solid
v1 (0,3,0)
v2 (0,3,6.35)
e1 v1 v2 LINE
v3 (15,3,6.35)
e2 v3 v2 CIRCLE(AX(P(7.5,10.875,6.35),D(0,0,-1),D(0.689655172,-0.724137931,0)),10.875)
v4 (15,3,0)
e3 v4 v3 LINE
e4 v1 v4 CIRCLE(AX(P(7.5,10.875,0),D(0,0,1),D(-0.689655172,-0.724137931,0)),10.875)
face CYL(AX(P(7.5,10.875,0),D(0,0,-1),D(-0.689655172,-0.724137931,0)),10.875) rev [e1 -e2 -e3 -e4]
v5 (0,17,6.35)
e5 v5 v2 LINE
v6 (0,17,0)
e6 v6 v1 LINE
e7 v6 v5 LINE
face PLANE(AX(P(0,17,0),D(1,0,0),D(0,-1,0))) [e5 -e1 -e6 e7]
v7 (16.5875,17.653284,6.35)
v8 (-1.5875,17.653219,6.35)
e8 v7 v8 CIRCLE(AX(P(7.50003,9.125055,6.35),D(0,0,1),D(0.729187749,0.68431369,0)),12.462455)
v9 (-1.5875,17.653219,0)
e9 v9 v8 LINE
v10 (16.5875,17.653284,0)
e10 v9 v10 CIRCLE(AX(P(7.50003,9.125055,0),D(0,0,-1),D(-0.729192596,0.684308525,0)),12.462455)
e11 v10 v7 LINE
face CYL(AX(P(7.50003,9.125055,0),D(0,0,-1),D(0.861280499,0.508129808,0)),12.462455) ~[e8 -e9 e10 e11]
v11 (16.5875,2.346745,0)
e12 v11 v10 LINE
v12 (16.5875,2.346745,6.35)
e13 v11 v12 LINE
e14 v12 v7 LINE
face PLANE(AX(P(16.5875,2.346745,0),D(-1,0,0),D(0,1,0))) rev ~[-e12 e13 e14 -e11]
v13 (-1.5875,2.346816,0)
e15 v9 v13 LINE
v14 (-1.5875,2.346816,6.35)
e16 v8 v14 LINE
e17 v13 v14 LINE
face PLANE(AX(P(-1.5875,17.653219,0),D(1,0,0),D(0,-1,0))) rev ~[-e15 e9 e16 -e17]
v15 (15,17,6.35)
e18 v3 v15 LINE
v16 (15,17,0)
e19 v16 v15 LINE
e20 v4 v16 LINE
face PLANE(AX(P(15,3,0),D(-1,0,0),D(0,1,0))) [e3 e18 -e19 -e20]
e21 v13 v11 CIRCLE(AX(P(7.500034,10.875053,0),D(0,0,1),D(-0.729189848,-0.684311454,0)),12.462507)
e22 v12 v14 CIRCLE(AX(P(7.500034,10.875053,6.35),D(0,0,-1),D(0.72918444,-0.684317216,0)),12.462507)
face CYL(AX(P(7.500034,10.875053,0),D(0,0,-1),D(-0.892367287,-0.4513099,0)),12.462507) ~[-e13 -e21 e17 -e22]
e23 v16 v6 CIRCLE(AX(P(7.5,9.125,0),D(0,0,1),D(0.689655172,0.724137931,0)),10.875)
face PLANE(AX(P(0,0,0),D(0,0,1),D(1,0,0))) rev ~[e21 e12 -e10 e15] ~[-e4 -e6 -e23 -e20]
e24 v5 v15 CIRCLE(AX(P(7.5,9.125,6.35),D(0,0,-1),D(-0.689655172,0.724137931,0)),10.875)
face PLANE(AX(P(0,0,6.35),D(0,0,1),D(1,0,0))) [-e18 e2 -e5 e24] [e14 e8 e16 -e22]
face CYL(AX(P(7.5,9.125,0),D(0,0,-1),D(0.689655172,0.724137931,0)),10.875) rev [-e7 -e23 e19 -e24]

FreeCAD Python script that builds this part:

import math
import FreeCAD as App
import Part
import Sketcher
Q = App.Units.Quantity

doc = App.newDocument("Part")
body = doc.addObject("PartDesign::Body", "Body")

# Sketch on XY plane
sketch1 = body.newObject("Sketcher::SketchObject", "Sketch")
sketch1.AttachmentSupport = (doc.getObject("XY_Plane"), [""])
sketch1.MapMode = "FlatFace"
sketch1.addGeometry(Part.LineSegment(App.Vector(16.5875, 2.346745, 0), App.Vector(16.5875, 17.653284, 0)), False)
sketch1.addGeometry(Part.ArcOfCircle(Part.Circle(App.Vector(7.5, 9.125, 0), App.Vector(0, 0, 1), 12.462509), math.radians(43.181746), math.radians(136.81847)), False)
sketch1.addGeometry(Part.LineSegment(App.Vector(-1.5875, 17.653219, 0), App.Vector(-1.5875, 2.346816, 0)), False)
sketch1.addGeometry(Part.ArcOfCircle(Part.Circle(App.Vector(7.5, 10.875, 0), App.Vector(0, 0, 1), 12.462453), math.radians(-136.81859), math.radians(-43.18165)), False)
sketch1.addGeometry(Part.LineSegment(App.Vector(0, 3, 0), App.Vector(0, 17, 0)), False)
sketch1.addGeometry(Part.ArcOfCircle(Part.Circle(App.Vector(7.5, 9.125, 0), App.Vector(0, 0, 1), 10.875), math.radians(46.397181), math.radians(133.602819)), False)
sketch1.addGeometry(Part.LineSegment(App.Vector(15, 17, 0), App.Vector(15, 3, 0)), False)
sketch1.addGeometry(Part.ArcOfCircle(Part.Circle(App.Vector(7.5, 10.875, 0), App.Vector(0, 0, 1), 10.875), math.radians(-133.602819), math.radians(-46.397181)), False)
sketch1.addConstraint(Sketcher.Constraint("Coincident", 0, 2, 1, 1))
sketch1.addConstraint(Sketcher.Constraint("Coincident", 1, 2, 2, 1))
sketch1.addConstraint(Sketcher.Constraint("Coincident", 2, 2, 3, 1))
sketch1.addConstraint(Sketcher.Constraint("Coincident", 3, 2, 0, 1))
sketch1.addConstraint(Sketcher.Constraint("Coincident", 4, 2, 5, 2))
sketch1.addConstraint(Sketcher.Constraint("Coincident", 5, 1, 6, 1))
sketch1.addConstraint(Sketcher.Constraint("Coincident", 6, 2, 7, 2))
sketch1.addConstraint(Sketcher.Constraint("Coincident", 7, 1, 4, 1))
sketch1.addConstraint(Sketcher.Constraint("Vertical", 0))
sketch1.addConstraint(Sketcher.Constraint("Vertical", 2))
sketch1.addConstraint(Sketcher.Constraint("Vertical", 4))
sketch1.addConstraint(Sketcher.Constraint("Vertical", 6))
sketch1.addConstraint(Sketcher.Constraint("Coincident", 5, 3, 1, 3))
sketch1.addConstraint(Sketcher.Constraint("Coincident", 7, 3, 3, 3))
sketch1.addConstraint(Sketcher.Constraint("Equal", 1, 3))
sketch1.addConstraint(Sketcher.Constraint("Equal", 5, 7))
sketch1.addConstraint(Sketcher.Constraint("PointOnObject", 4, 2, -2))
sketch1.addConstraint(Sketcher.Constraint("Horizontal", 0, 2, 1, 2))
sketch1.addConstraint(Sketcher.Constraint("Horizontal", 2, 2, 3, 2))
sketch1.addConstraint(Sketcher.Constraint("Horizontal", 4, 2, 5, 1))
sketch1.addConstraint(Sketcher.Constraint("DistanceY", 4, 1, 4, 2, Q("14 mm")))
sketch1.addConstraint(Sketcher.Constraint("DistanceX", -1, 1, 5, 1, Q("15 mm")))
sketch1.addConstraint(Sketcher.Constraint("DistanceY", -1, 1, 4, 2, Q("17 mm")))
sketch1.addConstraint(Sketcher.Constraint("Radius", 5, Q("10.875 mm")))
sketch1.addConstraint(Sketcher.Constraint("DistanceX", 1, 2, -1, 1, Q("1.5875 mm")))
sketch1.addConstraint(Sketcher.Constraint("Radius", 1, Q("12.4625 mm")))
pad1 = body.newObject("PartDesign::Pad", "Pad")
pad1.Profile = sketch1
pad1.Length = 6.35

doc.recompute()
